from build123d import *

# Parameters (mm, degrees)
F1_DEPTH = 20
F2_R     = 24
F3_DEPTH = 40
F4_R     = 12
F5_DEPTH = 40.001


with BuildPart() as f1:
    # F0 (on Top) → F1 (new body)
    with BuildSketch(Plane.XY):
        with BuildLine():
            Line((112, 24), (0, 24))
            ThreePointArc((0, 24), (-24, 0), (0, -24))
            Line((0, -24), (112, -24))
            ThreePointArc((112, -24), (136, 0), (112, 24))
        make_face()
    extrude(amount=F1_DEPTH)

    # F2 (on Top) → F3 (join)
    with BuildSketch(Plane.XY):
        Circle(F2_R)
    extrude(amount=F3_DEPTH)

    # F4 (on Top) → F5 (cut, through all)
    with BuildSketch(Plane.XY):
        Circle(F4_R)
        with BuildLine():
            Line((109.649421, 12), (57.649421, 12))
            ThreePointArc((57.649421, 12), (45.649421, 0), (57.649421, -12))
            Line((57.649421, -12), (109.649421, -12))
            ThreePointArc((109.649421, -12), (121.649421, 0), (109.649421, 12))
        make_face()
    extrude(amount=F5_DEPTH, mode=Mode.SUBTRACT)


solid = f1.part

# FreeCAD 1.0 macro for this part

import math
import FreeCAD as App
import Part
import Sketcher
from FreeCAD import Vector

doc = App.newDocument("Part")
body = doc.addObject("PartDesign::Body", "Body")

sketch1 = doc.addObject("Sketcher::SketchObject", "Sketch")
body.addObject(sketch1)
sketch1.AttachmentSupport = (doc.XY_Plane, [""])
sketch1.MapMode = "FlatFace"
sketch1.addGeometry(Part.LineSegment(Vector(112, 24, 0), Vector(0, 24, 0)), False)
sketch1.addGeometry(Part.ArcOfCircle(Part.Circle(Vector(0, 0, 0), Vector(0, 0, 1), 24), math.radians(90), math.radians(270)), False)
sketch1.addGeometry(Part.LineSegment(Vector(0, -24, 0), Vector(112, -24, 0)), False)
sketch1.addGeometry(Part.ArcOfCircle(Part.Circle(Vector(112, 0, 0), Vector(0, 0, 1), 24), math.radians(-90), math.radians(90)), False)
sketch1.addConstraint(Sketcher.Constraint("Tangent", 0, 2, 1, 1))
sketch1.addConstraint(Sketcher.Constraint("Tangent", 1, 2, 2, 1))
sketch1.addConstraint(Sketcher.Constraint("Tangent", 2, 2, 3, 1))
sketch1.addConstraint(Sketcher.Constraint("Tangent", 3, 2, 0, 1))
sketch1.addConstraint(Sketcher.Constraint("Horizontal", 0))
sketch1.addConstraint(Sketcher.Constraint("Horizontal", 2))
sketch1.addConstraint(Sketcher.Constraint("Coincident", 1, 3, -1, 1))
sketch1.addConstraint(Sketcher.Constraint("Radius", 1, 24.0))
sketch1.addConstraint(Sketcher.Constraint("DistanceX", 0, 2, 0, 1, 112.0))
pad1 = doc.addObject("PartDesign::Pad", "Pad")
body.addObject(pad1)
pad1.Profile = sketch1
pad1.Length = 20

sketch2 = doc.addObject("Sketcher::SketchObject", "Sketch001")
body.addObject(sketch2)
sketch2.AttachmentSupport = (doc.XY_Plane, [""])
sketch2.MapMode = "FlatFace"
sketch2.addGeometry(Part.Circle(Vector(0, 0, 0), Vector(0, 0, 1), 24), False)
sketch2.addConstraint(Sketcher.Constraint("Coincident", 0, 3, -1, 1))
sketch2.addConstraint(Sketcher.Constraint("Diameter", 0, 48.0))
pad2 = doc.addObject("PartDesign::Pad", "Pad001")
body.addObject(pad2)
pad2.Profile = sketch2
pad2.Length = 40

sketch3 = doc.addObject("Sketcher::SketchObject", "Sketch002")
body.addObject(sketch3)
sketch3.AttachmentSupport = (doc.XY_Plane, [""])
sketch3.MapMode = "FlatFace"
sketch3.addGeometry(Part.Circle(Vector(0, 0, 0), Vector(0, 0, 1), 12), False)
sketch3.addGeometry(Part.LineSegment(Vector(110, 12, 0), Vector(58, 12, 0)), False)
sketch3.addGeometry(Part.ArcOfCircle(Part.Circle(Vector(58, 0, 0), Vector(0, 0, 1), 12), math.radians(90), math.radians(270)), False)
sketch3.addGeometry(Part.LineSegment(Vector(58, -12, 0), Vector(110, -12, 0)), False)
sketch3.addGeometry(Part.ArcOfCircle(Part.Circle(Vector(110, 0, 0), Vector(0, 0, 1), 12), math.radians(-90), math.radians(90)), False)
sketch3.addConstraint(Sketcher.Constraint("Tangent", 1, 2, 2, 1))
sketch3.addConstraint(Sketcher.Constraint("Tangent", 2, 2, 3, 1))
sketch3.addConstraint(Sketcher.Constraint("Tangent", 3, 2, 4, 1))
sketch3.addConstraint(Sketcher.Constraint("Tangent", 4, 2, 1, 1))
sketch3.addConstraint(Sketcher.Constraint("Horizontal", 1))
sketch3.addConstraint(Sketcher.Constraint("Horizontal", 3))
sketch3.addConstraint(Sketcher.Constraint("Coincident", 0, 3, -1, 1))
sketch3.addConstraint(Sketcher.Constraint("Equal", 0, 2))
sketch3.addConstraint(Sketcher.Constraint("PointOnObject", 2, 3, -1))
sketch3.addConstraint(Sketcher.Constraint("Diameter", 0, 24.0))
sketch3.addConstraint(Sketcher.Constraint("DistanceX", 1, 2, 1, 1, 52.0))
sketch3.addConstraint(Sketcher.Constraint("DistanceX", -1, 1, 2, 3, 57.649421))
pocket1 = doc.addObject("PartDesign::Pocket", "Pocket")
body.addObject(pocket1)
pocket1.Profile = sketch3
pocket1.Type = "ThroughAll"
pocket1.Reversed = True

doc.recompute()
